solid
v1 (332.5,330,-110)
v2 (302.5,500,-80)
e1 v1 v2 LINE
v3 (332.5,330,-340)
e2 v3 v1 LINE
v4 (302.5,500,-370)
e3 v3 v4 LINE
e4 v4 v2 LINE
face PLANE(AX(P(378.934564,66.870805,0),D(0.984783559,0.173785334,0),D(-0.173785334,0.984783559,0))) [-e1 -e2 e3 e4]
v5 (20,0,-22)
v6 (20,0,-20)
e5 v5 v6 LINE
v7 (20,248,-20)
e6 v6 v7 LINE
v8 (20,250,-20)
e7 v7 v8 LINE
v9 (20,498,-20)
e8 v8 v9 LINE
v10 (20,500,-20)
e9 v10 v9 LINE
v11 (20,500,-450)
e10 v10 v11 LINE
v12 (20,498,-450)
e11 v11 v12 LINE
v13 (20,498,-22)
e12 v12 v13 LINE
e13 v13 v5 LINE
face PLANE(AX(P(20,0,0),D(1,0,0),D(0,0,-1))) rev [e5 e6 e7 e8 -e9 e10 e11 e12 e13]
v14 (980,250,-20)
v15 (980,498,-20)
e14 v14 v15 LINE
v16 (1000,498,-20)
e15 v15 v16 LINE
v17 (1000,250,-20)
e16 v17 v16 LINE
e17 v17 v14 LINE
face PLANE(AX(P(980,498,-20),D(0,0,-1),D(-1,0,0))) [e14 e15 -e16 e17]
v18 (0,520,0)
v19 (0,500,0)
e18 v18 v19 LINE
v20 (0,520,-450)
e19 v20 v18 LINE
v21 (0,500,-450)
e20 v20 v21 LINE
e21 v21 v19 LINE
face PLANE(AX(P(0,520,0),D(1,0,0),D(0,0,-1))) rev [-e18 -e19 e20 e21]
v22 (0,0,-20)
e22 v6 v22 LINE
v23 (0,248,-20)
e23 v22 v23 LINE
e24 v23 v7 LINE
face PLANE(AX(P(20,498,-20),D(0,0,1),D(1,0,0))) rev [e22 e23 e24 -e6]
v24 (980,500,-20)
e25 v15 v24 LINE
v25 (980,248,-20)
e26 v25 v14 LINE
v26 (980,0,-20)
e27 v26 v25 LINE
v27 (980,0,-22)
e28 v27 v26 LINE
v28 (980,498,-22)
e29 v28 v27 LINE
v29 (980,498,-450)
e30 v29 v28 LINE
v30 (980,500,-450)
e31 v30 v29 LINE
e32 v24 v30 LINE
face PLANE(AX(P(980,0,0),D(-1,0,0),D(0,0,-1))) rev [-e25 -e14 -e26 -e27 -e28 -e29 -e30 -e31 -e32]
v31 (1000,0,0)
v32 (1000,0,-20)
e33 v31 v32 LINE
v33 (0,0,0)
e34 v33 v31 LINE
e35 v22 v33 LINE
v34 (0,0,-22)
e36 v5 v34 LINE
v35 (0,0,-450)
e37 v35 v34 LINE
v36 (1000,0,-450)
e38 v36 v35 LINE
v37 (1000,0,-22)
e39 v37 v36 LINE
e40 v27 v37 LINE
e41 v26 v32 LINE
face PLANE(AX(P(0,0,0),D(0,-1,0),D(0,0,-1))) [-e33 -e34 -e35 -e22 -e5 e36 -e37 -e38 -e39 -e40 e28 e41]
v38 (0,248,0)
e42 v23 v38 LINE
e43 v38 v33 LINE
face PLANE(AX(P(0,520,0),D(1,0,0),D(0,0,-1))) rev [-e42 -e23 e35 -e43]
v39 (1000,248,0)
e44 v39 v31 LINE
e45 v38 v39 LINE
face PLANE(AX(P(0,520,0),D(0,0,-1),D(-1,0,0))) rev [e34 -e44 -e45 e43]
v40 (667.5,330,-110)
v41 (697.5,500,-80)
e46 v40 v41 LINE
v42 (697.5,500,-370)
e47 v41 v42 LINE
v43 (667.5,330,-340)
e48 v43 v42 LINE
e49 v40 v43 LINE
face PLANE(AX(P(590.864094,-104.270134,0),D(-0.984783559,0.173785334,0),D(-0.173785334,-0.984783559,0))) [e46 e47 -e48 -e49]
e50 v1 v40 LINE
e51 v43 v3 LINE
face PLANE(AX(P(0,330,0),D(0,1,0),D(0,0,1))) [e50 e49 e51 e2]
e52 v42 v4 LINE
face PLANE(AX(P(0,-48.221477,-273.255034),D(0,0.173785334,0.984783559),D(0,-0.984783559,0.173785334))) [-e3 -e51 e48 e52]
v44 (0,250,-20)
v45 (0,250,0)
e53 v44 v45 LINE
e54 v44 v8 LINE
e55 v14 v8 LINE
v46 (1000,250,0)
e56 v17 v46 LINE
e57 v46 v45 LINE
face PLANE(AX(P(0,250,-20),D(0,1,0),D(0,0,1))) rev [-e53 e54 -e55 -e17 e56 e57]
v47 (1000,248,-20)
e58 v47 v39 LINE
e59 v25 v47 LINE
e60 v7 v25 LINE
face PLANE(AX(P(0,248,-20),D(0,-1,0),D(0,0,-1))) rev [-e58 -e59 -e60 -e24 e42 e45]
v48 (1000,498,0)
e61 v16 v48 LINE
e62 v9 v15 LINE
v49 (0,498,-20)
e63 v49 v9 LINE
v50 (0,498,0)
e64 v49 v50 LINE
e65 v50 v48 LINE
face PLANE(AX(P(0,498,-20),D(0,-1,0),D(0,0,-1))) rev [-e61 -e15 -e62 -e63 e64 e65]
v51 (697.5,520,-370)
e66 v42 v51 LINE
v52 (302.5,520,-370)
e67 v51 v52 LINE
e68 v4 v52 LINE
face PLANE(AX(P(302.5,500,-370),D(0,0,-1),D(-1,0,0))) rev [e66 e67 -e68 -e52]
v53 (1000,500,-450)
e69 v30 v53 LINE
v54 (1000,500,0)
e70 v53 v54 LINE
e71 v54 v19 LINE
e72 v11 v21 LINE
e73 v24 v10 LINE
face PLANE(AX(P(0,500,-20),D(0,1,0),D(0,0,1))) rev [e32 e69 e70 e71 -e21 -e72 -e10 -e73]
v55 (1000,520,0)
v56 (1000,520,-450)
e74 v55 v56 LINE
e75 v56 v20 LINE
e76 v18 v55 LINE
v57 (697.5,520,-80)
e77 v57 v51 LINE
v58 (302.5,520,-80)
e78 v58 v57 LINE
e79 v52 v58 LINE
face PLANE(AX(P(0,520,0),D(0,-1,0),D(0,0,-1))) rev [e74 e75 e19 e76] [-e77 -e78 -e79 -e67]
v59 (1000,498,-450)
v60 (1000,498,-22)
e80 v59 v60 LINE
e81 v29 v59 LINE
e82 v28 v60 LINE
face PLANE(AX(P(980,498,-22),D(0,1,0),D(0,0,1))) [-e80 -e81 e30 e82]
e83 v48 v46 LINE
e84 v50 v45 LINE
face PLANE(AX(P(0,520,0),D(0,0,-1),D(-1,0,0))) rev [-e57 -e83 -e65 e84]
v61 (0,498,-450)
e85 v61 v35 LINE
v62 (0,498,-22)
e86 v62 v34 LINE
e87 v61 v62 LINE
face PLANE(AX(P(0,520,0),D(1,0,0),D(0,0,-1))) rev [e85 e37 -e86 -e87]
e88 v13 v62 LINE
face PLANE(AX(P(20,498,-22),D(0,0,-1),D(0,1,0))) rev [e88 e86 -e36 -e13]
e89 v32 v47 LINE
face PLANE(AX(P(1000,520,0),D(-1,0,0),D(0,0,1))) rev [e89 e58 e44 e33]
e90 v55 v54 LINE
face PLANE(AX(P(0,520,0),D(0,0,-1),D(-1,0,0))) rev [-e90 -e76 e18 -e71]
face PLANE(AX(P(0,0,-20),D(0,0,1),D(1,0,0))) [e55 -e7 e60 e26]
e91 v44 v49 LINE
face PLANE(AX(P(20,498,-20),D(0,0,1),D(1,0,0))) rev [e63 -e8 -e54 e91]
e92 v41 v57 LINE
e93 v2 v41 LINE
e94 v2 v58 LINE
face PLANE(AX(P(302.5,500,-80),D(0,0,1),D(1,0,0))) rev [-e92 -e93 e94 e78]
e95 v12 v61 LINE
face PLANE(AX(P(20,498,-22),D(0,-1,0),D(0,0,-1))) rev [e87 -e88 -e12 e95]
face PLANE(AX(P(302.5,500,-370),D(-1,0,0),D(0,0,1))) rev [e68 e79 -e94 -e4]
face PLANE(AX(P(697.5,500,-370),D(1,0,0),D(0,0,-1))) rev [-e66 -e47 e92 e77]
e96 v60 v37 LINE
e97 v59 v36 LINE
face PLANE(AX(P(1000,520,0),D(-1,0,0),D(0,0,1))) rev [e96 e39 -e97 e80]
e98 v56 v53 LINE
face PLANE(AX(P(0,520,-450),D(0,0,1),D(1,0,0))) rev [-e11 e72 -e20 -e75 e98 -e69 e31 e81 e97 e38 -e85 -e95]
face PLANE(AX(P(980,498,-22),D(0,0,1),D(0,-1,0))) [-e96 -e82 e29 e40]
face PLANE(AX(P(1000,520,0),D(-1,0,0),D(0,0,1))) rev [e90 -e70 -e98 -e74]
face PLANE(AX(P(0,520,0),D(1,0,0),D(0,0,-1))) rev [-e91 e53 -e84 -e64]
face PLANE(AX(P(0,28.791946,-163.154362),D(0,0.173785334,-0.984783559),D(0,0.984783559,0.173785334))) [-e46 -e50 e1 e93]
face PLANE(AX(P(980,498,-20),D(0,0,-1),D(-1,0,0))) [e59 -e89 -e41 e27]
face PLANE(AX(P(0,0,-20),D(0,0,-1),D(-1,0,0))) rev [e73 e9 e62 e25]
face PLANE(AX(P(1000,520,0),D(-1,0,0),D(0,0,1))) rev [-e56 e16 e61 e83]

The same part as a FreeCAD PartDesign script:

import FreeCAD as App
import Part
import Sketcher

V = App.Vector
Q = App.Units.Quantity

doc = App.newDocument("Part")
body = doc.addObject("PartDesign::Body", "Body")

sketch1 = body.newObject("Sketcher::SketchObject", "Sketch")
sketch1.AttachmentSupport = (doc.getObject("XZ_Plane"), [""])
sketch1.MapMode = "FlatFace"
sketch1.addGeometry([
    Part.LineSegment(V(0, -450, 0), V(0, 0, 0)),
    Part.LineSegment(V(0, 0, 0), V(1000, 0, 0)),
    Part.LineSegment(V(1000, 0, 0), V(1000, -450, 0)),
    Part.LineSegment(V(1000, -450, 0), V(0, -450, 0)),
], False)
sketch1.addConstraint([
    Sketcher.Constraint("Coincident", 0, 2, 1, 1),
    Sketcher.Constraint("Coincident", 1, 2, 2, 1),
    Sketcher.Constraint("Coincident", 2, 2, 3, 1),
    Sketcher.Constraint("Coincident", 3, 2, 0, 1),
    Sketcher.Constraint("Vertical", 0),
    Sketcher.Constraint("Horizontal", 1),
    Sketcher.Constraint("Vertical", 2),
    Sketcher.Constraint("Horizontal", 3),
    Sketcher.Constraint("Coincident", 0, 2, -1, 1),
    Sketcher.Constraint("DistanceX", 1, 1, 1, 2, Q("1000 mm")),
    Sketcher.Constraint("DistanceY", 0, 1, 0, 2, Q("450 mm")),
])
pad1 = body.newObject("PartDesign::Pad", "Pad")
pad1.Profile = sketch1
pad1.Length = 520
pad1.Reversed = True

sketch2 = body.newObject("Sketcher::SketchObject", "Sketch001")
sketch2.AttachmentSupport = (doc.getObject("XZ_Plane"), [""])
sketch2.MapMode = "FlatFace"
sketch2.AttachmentOffset = App.Placement(V(0, 0, -520), App.Rotation())
sketch2.addGeometry([
    Part.LineSegment(V(302, -370, 0), V(302, -80, 0)),
    Part.LineSegment(V(302, -80, 0), V(698, -80, 0)),
    Part.LineSegment(V(698, -80, 0), V(698, -370, 0)),
    Part.LineSegment(V(698, -370, 0), V(302, -370, 0)),
], False)
sketch2.addConstraint([
    Sketcher.Constraint("Coincident", 0, 2, 1, 1),
    Sketcher.Constraint("Coincident", 1, 2, 2, 1),
    Sketcher.Constraint("Coincident", 2, 2, 3, 1),
    Sketcher.Constraint("Coincident", 3, 2, 0, 1),
    Sketcher.Constraint("Vertical", 0),
    Sketcher.Constraint("Horizontal", 1),
    Sketcher.Constraint("Vertical", 2),
    Sketcher.Constraint("Horizontal", 3),
    Sketcher.Constraint("DistanceX", 1, 1, 1, 2, Q("395 mm")),
    Sketcher.Constraint("DistanceY", 0, 1, 0, 2, Q("290 mm")),
    Sketcher.Constraint("DistanceY", 0, 2, -1, 1, Q("80 mm")),
    Sketcher.Constraint("DistanceX", -1, 1, 0, 2, Q("302.5 mm")),
])
pocket1 = body.newObject("PartDesign::Pocket", "Pocket")
pocket1.Profile = sketch2
pocket1.Length = 20
pocket1.Reversed = True

sketch3 = body.newObject("Sketcher::SketchObject", "Sketch002")
sketch3.AttachmentSupport = (doc.getObject("XZ_Plane"), [""])
sketch3.MapMode = "FlatFace"
sketch3.AttachmentOffset = App.Placement(V(0, 0, -330), App.Rotation())
sketch3.addGeometry([
    Part.LineSegment(V(668, -340, 0), V(332, -340, 0)),
    Part.LineSegment(V(332, -340, 0), V(332, -110, 0)),
    Part.LineSegment(V(332, -110, 0), V(668, -110, 0)),
    Part.LineSegment(V(668, -110, 0), V(668, -340, 0)),
], False)
sketch3.addConstraint([
    Sketcher.Constraint("Coincident", 0, 2, 1, 1),
    Sketcher.Constraint("Coincident", 1, 2, 2, 1),
    Sketcher.Constraint("Coincident", 2, 2, 3, 1),
    Sketcher.Constraint("Coincident", 3, 2, 0, 1),
    Sketcher.Constraint("Horizontal", 0),
    Sketcher.Constraint("Vertical", 1),
    Sketcher.Constraint("Horizontal", 2),
    Sketcher.Constraint("Vertical", 3),
    Sketcher.Constraint("DistanceX", 0, 2, 0, 1, Q("335 mm")),
    Sketcher.Constraint("DistanceY", 1, 1, 1, 2, Q("230 mm")),
    Sketcher.Constraint("DistanceY", 0, 2, -1, 1, Q("340 mm")),
    Sketcher.Constraint("DistanceX", -1, 1, 0, 2, Q("332.5 mm")),
])

sketch4 = body.newObject("Sketcher::SketchObject", "Sketch003")
sketch4.AttachmentSupport = (doc.getObject("XZ_Plane"), [""])
sketch4.MapMode = "FlatFace"
sketch4.AttachmentOffset = App.Placement(V(0, 0, -500), App.Rotation())
sketch4.addGeometry([
    Part.LineSegment(V(698, -370, 0), V(302, -370, 0)),
    Part.LineSegment(V(302, -370, 0), V(302, -80, 0)),
    Part.LineSegment(V(302, -80, 0), V(698, -80, 0)),
    Part.LineSegment(V(698, -80, 0), V(698, -370, 0)),
], False)
sketch4.addConstraint([
    Sketcher.Constraint("Coincident", 0, 2, 1, 1),
    Sketcher.Constraint("Coincident", 1, 2, 2, 1),
    Sketcher.Constraint("Coincident", 2, 2, 3, 1),
    Sketcher.Constraint("Coincident", 3, 2, 0, 1),
    Sketcher.Constraint("Horizontal", 0),
    Sketcher.Constraint("Vertical", 1),
    Sketcher.Constraint("Horizontal", 2),
    Sketcher.Constraint("Vertical", 3),
    Sketcher.Constraint("DistanceX", 0, 2, 0, 1, Q("395 mm")),
    Sketcher.Constraint("DistanceY", 1, 1, 1, 2, Q("290 mm")),
    Sketcher.Constraint("DistanceY", 0, 2, -1, 1, Q("370 mm")),
    Sketcher.Constraint("DistanceX", -1, 1, 0, 2, Q("302.5 mm")),
])

subtractiveloft = body.newObject("PartDesign::SubtractiveLoft", "SubtractiveLoft")
subtractiveloft.Profile = sketch3
subtractiveloft.Sections = [sketch4]

sketch5 = body.newObject("Sketcher::SketchObject", "Sketch004")
sketch5.AttachmentSupport = (doc.getObject("XY_Plane"), [""])
sketch5.MapMode = "FlatFace"
sketch5.addGeometry([
    Part.LineSegment(V(0, 500, 0), V(0, 498, 0)),
    Part.LineSegment(V(0, 498, 0), V(1000, 498, 0)),
    Part.LineSegment(V(1000, 498, 0), V(1000, 500, 0)),
    Part.LineSegment(V(1000, 500, 0), V(0, 500, 0)),
    Part.LineSegment(V(0, 250, 0), V(0, 248, 0)),
    Part.LineSegment(V(0, 248, 0), V(1000, 248, 0)),
    Part.LineSegment(V(1000, 248, 0), V(1000, 250, 0)),
    Part.LineSegment(V(1000, 250, 0), V(0, 250, 0)),
], False)
sketch5.addConstraint([
    Sketcher.Constraint("Coincident", 0, 2, 1, 1),
    Sketcher.Constraint("Coincident", 1, 2, 2, 1),
    Sketcher.Constraint("Coincident", 2, 2, 3, 1),
    Sketcher.Constraint("Coincident", 3, 2, 0, 1),
    Sketcher.Constraint("Coincident", 4, 2, 5, 1),
    Sketcher.Constraint("Coincident", 5, 2, 6, 1),
    Sketcher.Constraint("Coincident", 6, 2, 7, 1),
    Sketcher.Constraint("Coincident", 7, 2, 4, 1),
    Sketcher.Constraint("Vertical", 0),
    Sketcher.Constraint("Horizontal", 1),
    Sketcher.Constraint("Vertical", 2),
    Sketcher.Constraint("Horizontal", 3),
    Sketcher.Constraint("Vertical", 4),
    Sketcher.Constraint("Horizontal", 5),
    Sketcher.Constraint("Vertical", 6),
    Sketcher.Constraint("Horizontal", 7),
    Sketcher.Constraint("PointOnObject", 0, 2, -2),
    Sketcher.Constraint("PointOnObject", 4, 2, -2),
    Sketcher.Constraint("Vertical", 2, 2, 5, 2),
    Sketcher.Constraint("Equal", 2, 4),
    Sketcher.Constraint("DistanceX", 1, 1, 1, 2, Q("1000 mm")),
    Sketcher.Constraint("DistanceY", 0, 2, 0, 1, Q("2 mm")),
    Sketcher.Constraint("DistanceY", -1, 1, 0, 2, Q("498 mm")),
    Sketcher.Constraint("DistanceY", -1, 1, 4, 2, Q("248 mm")),
])
pocket2 = body.newObject("PartDesign::Pocket", "Pocket001")
pocket2.Profile = sketch5
pocket2.Length = 20

sketch6 = body.newObject("Sketcher::SketchObject", "Sketch005")
sketch6.AttachmentSupport = (doc.getObject("YZ_Plane"), [""])
sketch6.MapMode = "FlatFace"
sketch6.addGeometry([
    Part.LineSegment(V(500, -20, 0), V(500, -450, 0)),
    Part.LineSegment(V(500, -450, 0), V(498, -450, 0)),
    Part.LineSegment(V(498, -450, 0), V(498, -22, 0)),
    Part.LineSegment(V(498, -22, 0), V(0, -22, 0)),
    Part.LineSegment(V(0, -22, 0), V(0, -20, 0)),
    Part.LineSegment(V(0, -20, 0), V(500, -20, 0)),
], False)
sketch6.addConstraint([
    Sketcher.Constraint("Coincident", 0, 2, 1, 1),
    Sketcher.Constraint("Coincident", 1, 2, 2, 1),
    Sketcher.Constraint("Coincident", 2, 2, 3, 1),
    Sketcher.Constraint("Coincident", 3, 2, 4, 1),
    Sketcher.Constraint("Coincident", 4, 2, 5, 1),
    Sketcher.Constraint("Coincident", 5, 2, 0, 1),
    Sketcher.Constraint("Vertical", 0),
    Sketcher.Constraint("Horizontal", 1),
    Sketcher.Constraint("Vertical", 2),
    Sketcher.Constraint("Horizontal", 3),
    Sketcher.Constraint("Vertical", 4),
    Sketcher.Constraint("Horizontal", 5),
    Sketcher.Constraint("PointOnObject", 3, 2, -2),
    Sketcher.Constraint("Equal", 1, 4),
    Sketcher.Constraint("DistanceX", 1, 2, 1, 1, Q("2 mm")),
    Sketcher.Constraint("DistanceX", 3, 2, 3, 1, Q("498 mm")),
    Sketcher.Constraint("DistanceY", 0, 2, 0, 1, Q("430 mm")),
    Sketcher.Constraint("DistanceY", 0, 2, -1, 1, Q("450 mm")),
])
pocket3 = body.newObject("PartDesign::Pocket", "Pocket002")
pocket3.Profile = sketch6
pocket3.Length = 20
pocket3.Reversed = True
doc.recompute()

datumplane = body.newObject("PartDesign::Plane", "DatumPlane")
datumplane.AttachmentSupport = (doc.getObject("YZ_Plane"), [""])
datumplane.MapMode = "FlatFace"
datumplane.AttachmentOffset = App.Placement(V(0, 0, 500), App.Rotation())
mirrored = body.newObject("PartDesign::Mirrored", "Mirrored")
mirrored.Originals = [pocket3]
mirrored.MirrorPlane = (datumplane, [""])
body.Tip = mirrored

doc.recompute()
